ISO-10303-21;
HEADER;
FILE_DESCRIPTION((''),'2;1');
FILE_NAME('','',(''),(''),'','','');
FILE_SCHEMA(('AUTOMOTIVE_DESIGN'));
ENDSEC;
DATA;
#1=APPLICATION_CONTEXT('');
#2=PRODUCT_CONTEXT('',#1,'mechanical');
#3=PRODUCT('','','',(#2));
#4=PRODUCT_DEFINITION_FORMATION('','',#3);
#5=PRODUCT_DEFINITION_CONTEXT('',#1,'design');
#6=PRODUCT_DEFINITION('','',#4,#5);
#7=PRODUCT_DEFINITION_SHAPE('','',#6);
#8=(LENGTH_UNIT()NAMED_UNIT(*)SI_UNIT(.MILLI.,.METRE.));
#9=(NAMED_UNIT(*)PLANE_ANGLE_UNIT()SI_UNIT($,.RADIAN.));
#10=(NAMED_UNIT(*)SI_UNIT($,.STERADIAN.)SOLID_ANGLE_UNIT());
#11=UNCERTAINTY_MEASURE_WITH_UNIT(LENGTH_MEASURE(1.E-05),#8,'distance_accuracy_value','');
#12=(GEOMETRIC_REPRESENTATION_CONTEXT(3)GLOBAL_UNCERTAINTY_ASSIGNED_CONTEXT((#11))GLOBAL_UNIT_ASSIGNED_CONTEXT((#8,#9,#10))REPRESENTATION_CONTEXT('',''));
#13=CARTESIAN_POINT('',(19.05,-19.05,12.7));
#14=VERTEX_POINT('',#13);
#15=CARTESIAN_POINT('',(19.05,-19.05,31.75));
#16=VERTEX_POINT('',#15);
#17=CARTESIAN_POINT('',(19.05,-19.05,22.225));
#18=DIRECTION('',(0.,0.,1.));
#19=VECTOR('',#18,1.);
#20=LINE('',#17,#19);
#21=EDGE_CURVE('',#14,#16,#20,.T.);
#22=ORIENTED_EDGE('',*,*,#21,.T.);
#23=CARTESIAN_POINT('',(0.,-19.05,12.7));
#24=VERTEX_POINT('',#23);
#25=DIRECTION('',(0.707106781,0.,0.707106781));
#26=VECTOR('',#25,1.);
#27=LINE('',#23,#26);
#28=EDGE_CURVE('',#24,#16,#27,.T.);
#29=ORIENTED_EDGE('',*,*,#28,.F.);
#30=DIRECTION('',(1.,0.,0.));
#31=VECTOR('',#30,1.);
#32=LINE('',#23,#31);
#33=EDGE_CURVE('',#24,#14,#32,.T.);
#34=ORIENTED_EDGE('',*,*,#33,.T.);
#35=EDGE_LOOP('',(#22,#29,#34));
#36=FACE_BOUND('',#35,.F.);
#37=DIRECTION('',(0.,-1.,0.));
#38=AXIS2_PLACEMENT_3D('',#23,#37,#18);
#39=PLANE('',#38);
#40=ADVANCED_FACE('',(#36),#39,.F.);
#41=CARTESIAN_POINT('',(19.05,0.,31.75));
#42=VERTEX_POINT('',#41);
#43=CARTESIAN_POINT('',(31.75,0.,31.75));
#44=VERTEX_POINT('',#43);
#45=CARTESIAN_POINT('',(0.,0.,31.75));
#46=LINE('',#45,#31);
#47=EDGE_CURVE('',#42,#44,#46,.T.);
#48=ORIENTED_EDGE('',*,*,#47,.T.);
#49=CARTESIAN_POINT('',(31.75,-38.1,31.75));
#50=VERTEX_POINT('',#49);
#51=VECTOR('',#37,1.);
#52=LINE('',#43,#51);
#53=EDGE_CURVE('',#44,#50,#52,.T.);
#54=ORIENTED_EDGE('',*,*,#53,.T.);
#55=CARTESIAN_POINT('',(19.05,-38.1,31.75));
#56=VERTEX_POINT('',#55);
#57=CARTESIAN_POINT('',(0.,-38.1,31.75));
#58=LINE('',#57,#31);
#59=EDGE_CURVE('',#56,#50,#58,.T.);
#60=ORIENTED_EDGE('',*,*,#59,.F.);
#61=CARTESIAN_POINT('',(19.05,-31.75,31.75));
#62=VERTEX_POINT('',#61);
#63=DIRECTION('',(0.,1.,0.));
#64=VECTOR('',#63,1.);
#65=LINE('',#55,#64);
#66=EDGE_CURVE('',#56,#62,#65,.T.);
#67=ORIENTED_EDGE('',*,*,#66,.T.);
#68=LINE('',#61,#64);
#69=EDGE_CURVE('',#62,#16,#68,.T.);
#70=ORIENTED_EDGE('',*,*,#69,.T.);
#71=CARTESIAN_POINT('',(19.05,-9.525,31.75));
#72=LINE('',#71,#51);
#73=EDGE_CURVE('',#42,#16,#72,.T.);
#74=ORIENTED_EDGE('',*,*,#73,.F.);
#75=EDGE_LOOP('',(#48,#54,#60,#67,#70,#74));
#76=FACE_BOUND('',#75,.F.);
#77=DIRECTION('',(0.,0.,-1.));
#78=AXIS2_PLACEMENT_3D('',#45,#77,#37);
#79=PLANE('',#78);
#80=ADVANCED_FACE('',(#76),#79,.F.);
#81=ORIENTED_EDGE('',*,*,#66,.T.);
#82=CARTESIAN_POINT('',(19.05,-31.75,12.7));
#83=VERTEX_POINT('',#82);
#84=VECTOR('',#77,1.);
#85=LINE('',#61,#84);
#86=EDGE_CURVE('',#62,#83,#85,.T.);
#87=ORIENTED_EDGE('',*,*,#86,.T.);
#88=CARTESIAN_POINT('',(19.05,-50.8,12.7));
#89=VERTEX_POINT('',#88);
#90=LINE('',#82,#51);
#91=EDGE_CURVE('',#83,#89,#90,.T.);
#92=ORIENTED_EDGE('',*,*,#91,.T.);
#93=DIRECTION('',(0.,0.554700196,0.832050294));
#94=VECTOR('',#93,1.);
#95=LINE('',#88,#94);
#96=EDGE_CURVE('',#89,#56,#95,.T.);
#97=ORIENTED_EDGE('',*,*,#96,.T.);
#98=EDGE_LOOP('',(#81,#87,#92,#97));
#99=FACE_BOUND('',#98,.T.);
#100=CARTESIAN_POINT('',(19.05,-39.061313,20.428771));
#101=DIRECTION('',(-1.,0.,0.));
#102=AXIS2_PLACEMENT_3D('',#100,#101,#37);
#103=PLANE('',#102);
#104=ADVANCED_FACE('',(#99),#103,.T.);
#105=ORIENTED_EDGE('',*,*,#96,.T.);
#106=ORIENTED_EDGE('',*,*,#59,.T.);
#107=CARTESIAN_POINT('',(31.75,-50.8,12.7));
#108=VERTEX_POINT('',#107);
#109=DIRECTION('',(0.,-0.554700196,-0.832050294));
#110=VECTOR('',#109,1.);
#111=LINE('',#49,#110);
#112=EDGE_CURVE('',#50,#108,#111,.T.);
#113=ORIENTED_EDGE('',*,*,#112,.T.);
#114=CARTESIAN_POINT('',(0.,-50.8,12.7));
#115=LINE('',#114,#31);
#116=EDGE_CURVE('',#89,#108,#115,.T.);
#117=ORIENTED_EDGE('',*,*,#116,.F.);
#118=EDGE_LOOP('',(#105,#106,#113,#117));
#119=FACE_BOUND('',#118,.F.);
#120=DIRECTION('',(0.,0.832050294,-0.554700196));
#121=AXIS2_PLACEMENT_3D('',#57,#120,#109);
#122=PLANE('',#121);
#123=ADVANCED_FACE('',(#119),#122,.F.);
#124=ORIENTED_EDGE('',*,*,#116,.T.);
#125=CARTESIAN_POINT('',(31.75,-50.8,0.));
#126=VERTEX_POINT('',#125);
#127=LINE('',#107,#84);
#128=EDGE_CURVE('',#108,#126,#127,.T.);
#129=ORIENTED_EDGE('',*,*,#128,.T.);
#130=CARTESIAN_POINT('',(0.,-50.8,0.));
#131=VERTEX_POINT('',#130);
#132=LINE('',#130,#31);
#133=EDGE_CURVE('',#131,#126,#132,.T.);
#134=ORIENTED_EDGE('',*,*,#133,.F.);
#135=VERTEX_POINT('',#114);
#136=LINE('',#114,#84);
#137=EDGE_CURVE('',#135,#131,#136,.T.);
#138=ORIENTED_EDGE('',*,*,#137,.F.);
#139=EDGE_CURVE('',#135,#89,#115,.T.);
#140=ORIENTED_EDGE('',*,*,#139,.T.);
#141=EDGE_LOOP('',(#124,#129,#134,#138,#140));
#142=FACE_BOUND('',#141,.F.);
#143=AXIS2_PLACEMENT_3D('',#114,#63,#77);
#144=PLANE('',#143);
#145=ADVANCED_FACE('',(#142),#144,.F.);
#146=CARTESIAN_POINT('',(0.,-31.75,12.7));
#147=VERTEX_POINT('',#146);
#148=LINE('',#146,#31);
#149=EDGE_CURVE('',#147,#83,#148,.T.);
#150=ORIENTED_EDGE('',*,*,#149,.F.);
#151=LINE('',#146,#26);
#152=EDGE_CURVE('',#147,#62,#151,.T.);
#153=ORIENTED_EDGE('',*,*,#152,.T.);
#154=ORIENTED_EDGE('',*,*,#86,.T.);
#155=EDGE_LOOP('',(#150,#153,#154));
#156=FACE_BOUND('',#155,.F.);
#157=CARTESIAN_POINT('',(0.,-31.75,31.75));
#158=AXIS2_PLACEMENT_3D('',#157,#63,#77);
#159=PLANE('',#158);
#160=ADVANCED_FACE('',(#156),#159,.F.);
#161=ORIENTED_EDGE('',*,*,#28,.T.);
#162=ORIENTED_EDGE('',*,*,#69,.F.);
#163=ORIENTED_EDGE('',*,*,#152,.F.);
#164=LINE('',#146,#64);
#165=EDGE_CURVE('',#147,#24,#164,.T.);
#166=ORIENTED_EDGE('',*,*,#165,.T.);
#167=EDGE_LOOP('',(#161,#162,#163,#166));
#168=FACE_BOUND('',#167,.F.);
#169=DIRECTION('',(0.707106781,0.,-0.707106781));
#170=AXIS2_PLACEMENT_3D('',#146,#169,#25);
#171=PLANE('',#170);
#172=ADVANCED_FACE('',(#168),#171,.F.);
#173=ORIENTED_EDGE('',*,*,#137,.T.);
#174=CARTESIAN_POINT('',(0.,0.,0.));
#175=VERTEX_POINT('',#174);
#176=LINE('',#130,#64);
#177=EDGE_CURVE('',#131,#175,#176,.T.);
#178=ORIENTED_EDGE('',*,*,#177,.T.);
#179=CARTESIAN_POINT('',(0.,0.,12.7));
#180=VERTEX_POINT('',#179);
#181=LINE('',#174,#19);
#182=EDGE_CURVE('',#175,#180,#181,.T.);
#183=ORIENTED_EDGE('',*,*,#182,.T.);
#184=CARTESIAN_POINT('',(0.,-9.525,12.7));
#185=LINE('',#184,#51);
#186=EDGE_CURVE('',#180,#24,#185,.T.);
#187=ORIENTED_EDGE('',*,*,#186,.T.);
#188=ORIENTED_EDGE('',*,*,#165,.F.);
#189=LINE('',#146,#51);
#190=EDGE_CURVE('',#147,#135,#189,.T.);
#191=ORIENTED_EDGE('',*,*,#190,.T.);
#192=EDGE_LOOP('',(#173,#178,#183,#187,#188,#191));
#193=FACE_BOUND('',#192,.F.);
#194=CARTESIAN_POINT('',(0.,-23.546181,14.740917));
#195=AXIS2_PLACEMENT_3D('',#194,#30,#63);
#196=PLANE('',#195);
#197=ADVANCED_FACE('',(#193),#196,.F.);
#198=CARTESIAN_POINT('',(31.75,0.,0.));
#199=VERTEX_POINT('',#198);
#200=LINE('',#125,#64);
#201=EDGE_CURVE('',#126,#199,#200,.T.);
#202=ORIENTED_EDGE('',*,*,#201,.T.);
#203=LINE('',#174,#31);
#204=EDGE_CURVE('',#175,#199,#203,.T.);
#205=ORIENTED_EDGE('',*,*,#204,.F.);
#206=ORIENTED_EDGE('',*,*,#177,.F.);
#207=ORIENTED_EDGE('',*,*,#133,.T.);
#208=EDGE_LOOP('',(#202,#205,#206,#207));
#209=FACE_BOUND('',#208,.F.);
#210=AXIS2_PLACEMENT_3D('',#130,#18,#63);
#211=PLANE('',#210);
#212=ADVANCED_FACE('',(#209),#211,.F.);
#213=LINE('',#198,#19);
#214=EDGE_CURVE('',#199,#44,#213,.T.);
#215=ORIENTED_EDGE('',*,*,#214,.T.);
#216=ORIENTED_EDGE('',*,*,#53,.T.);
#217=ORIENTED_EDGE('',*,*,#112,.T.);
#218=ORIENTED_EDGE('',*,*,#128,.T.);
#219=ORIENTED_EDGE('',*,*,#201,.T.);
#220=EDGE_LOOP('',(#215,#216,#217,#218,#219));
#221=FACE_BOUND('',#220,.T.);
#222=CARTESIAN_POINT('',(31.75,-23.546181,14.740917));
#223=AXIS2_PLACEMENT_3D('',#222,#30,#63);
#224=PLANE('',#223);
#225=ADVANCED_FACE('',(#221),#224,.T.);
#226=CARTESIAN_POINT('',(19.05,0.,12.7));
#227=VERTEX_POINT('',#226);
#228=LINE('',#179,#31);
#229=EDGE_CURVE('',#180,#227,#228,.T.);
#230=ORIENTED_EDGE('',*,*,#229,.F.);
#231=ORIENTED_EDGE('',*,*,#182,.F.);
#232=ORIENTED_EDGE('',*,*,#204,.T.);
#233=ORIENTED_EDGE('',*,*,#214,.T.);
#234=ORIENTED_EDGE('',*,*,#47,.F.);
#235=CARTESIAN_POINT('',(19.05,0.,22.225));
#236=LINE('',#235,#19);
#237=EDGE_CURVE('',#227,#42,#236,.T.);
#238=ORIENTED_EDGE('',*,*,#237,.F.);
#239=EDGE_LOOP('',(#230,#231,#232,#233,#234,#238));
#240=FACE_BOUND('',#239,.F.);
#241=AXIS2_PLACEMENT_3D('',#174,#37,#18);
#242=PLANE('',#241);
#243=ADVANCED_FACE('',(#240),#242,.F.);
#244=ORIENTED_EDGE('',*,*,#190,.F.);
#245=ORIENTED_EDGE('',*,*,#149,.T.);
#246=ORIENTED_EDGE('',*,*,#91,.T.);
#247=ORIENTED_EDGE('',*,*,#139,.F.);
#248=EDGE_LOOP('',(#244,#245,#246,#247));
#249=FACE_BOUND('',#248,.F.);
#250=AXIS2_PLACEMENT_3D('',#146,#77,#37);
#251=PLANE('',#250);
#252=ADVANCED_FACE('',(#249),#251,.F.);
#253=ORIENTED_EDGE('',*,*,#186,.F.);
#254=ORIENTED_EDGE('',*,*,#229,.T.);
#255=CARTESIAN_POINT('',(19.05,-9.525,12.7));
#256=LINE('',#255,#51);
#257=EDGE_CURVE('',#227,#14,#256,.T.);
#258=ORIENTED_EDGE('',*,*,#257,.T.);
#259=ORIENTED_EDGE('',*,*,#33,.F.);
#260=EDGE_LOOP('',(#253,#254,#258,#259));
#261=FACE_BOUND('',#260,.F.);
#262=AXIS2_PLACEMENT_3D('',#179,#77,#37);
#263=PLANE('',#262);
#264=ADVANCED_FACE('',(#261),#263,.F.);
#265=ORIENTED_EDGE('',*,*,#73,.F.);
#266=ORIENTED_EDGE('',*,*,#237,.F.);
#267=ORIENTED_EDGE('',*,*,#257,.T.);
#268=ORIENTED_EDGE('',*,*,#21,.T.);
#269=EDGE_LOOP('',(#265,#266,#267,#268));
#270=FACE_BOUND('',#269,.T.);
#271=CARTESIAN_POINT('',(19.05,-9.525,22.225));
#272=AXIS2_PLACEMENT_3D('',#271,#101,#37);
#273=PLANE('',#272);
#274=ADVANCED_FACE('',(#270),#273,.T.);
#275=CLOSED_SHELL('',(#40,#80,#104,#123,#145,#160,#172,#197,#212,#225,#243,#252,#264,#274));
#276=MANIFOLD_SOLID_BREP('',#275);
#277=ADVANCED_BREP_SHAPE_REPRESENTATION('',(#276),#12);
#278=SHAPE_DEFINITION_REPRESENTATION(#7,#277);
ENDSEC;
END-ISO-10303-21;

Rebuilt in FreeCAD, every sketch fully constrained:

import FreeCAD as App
import Part
import Sketcher

V = App.Vector
Q = App.Units.Quantity

doc = App.newDocument("Part")
params = doc.addObject("Spreadsheet::Sheet", "Params")
for row, (alias, value) in enumerate([
    ("sketch1_width", "2 in"),
    ("sketch1_width2", "1.5 in"),
    ("sketch1_height", "0.5 in"),
    ("sketch1_height2", "1.25 in"),
    ("pad1_length", "1.25 in"),
    ("sketch2_width", "0.75 in"),
    ("sketch2_width2", "0.25 in"),
    ("pocket1_length", "0.75 in"),
    ("sketch3_width", "0.75 in"),
    ("pocket2_length", "0.5 in"),
    ("sketch4_width", "0.75 in"),
    ("pocket3_length", "0.75 in"),
], start=1):
    params.set(f"A{row}", alias)
    params.set(f"B{row}", "=" + value)
    params.setAlias(f"B{row}", alias)

body = doc.addObject("PartDesign::Body", "Body")

# Sketch on YZ plane
sketch1 = doc.addObject("Sketcher::SketchObject", "Sketch")
body.addObject(sketch1)
sketch1.AttachmentSupport = (doc.YZ_Plane, [""])
sketch1.MapMode = "FlatFace"
sketch1.addGeometry([
    Part.LineSegment(V(-51, 0, 0), V(0, 0, 0)),  # 0
    Part.LineSegment(V(0, 0, 0), V(0, 32, 0)),  # 1
    Part.LineSegment(V(0, 32, 0), V(-38, 32, 0)),  # 2
    Part.LineSegment(V(-38, 32, 0), V(-51, 13, 0)),  # 3
    Part.LineSegment(V(-51, 13, 0), V(-51, 0, 0)),  # 4
], False)
sketch1.addConstraint([
    Sketcher.Constraint("Coincident", 0, 2, 1, 1),
    Sketcher.Constraint("Coincident", 1, 2, 2, 1),
    Sketcher.Constraint("Coincident", 2, 2, 3, 1),
    Sketcher.Constraint("Coincident", 3, 2, 4, 1),
    Sketcher.Constraint("Coincident", 4, 2, 0, 1),
    Sketcher.Constraint("Horizontal", 0),
    Sketcher.Constraint("Vertical", 1),
    Sketcher.Constraint("Horizontal", 2),
    Sketcher.Constraint("Vertical", 4),
    Sketcher.Constraint("Coincident", 0, 2, -1, 1),
    Sketcher.Constraint("DistanceX", 0, 1, 0, 2, Q("2 in")),
    Sketcher.Constraint("DistanceX", 2, 2, 2, 1, Q("1.5 in")),
    Sketcher.Constraint("DistanceY", 4, 2, 4, 1, Q("0.5 in")),
    Sketcher.Constraint("DistanceY", 1, 1, 1, 2, Q("1.25 in")),
])
sketch1.setExpression("Constraints[10]", "Params.sketch1_width")
sketch1.setExpression("Constraints[11]", "Params.sketch1_width2")
sketch1.setExpression("Constraints[12]", "Params.sketch1_height")
sketch1.setExpression("Constraints[13]", "Params.sketch1_height2")
pad1 = doc.addObject("PartDesign::Pad", "Pad")
body.addObject(pad1)
pad1.Profile = sketch1
pad1.setExpression("Length", "Params.pad1_length")

# Sketch on YZ plane
sketch2 = doc.addObject("Sketcher::SketchObject", "Sketch001")
body.addObject(sketch2)
sketch2.AttachmentSupport = (doc.YZ_Plane, [""])
sketch2.MapMode = "FlatFace"
sketch2.addGeometry([
    Part.LineSegment(V(-32, 13, 0), V(-51, 13, 0)),
    Part.LineSegment(V(-51, 13, 0), V(-38, 32, 0)),
    Part.LineSegment(V(-38, 32, 0), V(-32, 32, 0)),
    Part.LineSegment(V(-32, 32, 0), V(-32, 13, 0)),
], False)
sketch2.addConstraint([
    Sketcher.Constraint("Coincident", 0, 2, 1, 1),
    Sketcher.Constraint("Coincident", 1, 2, 2, 1),
    Sketcher.Constraint("Coincident", 2, 2, 3, 1),
    Sketcher.Constraint("Coincident", 3, 2, 0, 1),
    Sketcher.Constraint("Horizontal", 0),
    Sketcher.Constraint("Horizontal", 2),
    Sketcher.Constraint("Vertical", 3),
    Sketcher.Constraint("Equal", 0, 3),
    Sketcher.Constraint("DistanceX", 0, 2, -1, 1, Q("2 in")),
    Sketcher.Constraint("DistanceX", 0, 2, 0, 1, Q("0.75 in")),
    Sketcher.Constraint("DistanceX", 2, 1, 2, 2, Q("0.25 in")),
    Sketcher.Constraint("DistanceY", -1, 1, 0, 2, Q("0.5 in")),
])
sketch2.setExpression("Constraints[9]", "Params.sketch2_width")
sketch2.setExpression("Constraints[10]", "Params.sketch2_width2")
pocket1 = doc.addObject("PartDesign::Pocket", "Pocket")
body.addObject(pocket1)
pocket1.Profile = sketch2
pocket1.setExpression("Length", "Params.pocket1_length")
pocket1.Reversed = True

# Sketch on XZ plane
sketch3 = doc.addObject("Sketcher::SketchObject", "Sketch002")
body.addObject(sketch3)
sketch3.AttachmentSupport = (doc.XZ_Plane, [""])
sketch3.MapMode = "FlatFace"
sketch3.AttachmentOffset = App.Placement(V(0, 0, 1.25 * 25.4), App.Rotation())
sketch3.addGeometry([
    Part.LineSegment(V(0, 13, 0), V(19, 32, 0)),
    Part.LineSegment(V(19, 32, 0), V(0, 32, 0)),
    Part.LineSegment(V(0, 32, 0), V(0, 13, 0)),
], False)
sketch3.addConstraint([
    Sketcher.Constraint("Coincident", 0, 2, 1, 1),
    Sketcher.Constraint("Coincident", 1, 2, 2, 1),
    Sketcher.Constraint("Coincident", 2, 2, 0, 1),
    Sketcher.Constraint("Horizontal", 1),
    Sketcher.Constraint("Vertical", 2),
    Sketcher.Constraint("PointOnObject", 1, 2, -2),
    Sketcher.Constraint("Equal", 1, 2),
    Sketcher.Constraint("DistanceX", 1, 2, 1, 1, Q("0.75 in")),
    Sketcher.Constraint("DistanceY", -1, 1, 2, 2, Q("0.5 in")),
])
sketch3.setExpression("Constraints[7]", "Params.sketch3_width")
pocket2 = doc.addObject("PartDesign::Pocket", "Pocket001")
body.addObject(pocket2)
pocket2.Profile = sketch3
pocket2.setExpression("Length", "Params.pocket2_length")

# Sketch on YZ plane
sketch4 = doc.addObject("Sketcher::SketchObject", "Sketch003")
body.addObject(sketch4)
sketch4.AttachmentSupport = (doc.YZ_Plane, [""])
sketch4.MapMode = "FlatFace"
sketch4.addGeometry([
    Part.LineSegment(V(0, 32, 0), V(0, 13, 0)),
    Part.LineSegment(V(0, 13, 0), V(-19, 13, 0)),
    Part.LineSegment(V(-19, 13, 0), V(-19, 32, 0)),
    Part.LineSegment(V(-19, 32, 0), V(0, 32, 0)),
], False)
sketch4.addConstraint([
    Sketcher.Constraint("Coincident", 0, 2, 1, 1),
    Sketcher.Constraint("Coincident", 1, 2, 2, 1),
    Sketcher.Constraint("Coincident", 2, 2, 3, 1),
    Sketcher.Constraint("Coincident", 3, 2, 0, 1),
    Sketcher.Constraint("Vertical", 0),
    Sketcher.Constraint("Horizontal", 1),
    Sketcher.Constraint("Vertical", 2),
    Sketcher.Constraint("Horizontal", 3),
    Sketcher.Constraint("PointOnObject", 0, 2, -2),
    Sketcher.Constraint("Equal", 3, 0),
    Sketcher.Constraint("DistanceX", 1, 2, 1, 1, Q("0.75 in")),
    Sketcher.Constraint("DistanceY", -1, 1, 0, 2, Q("0.5 in")),
])
sketch4.setExpression("Constraints[10]", "Params.sketch4_width")
pocket3 = doc.addObject("PartDesign::Pocket", "Pocket002")
body.addObject(pocket3)
pocket3.Profile = sketch4
pocket3.setExpression("Length", "Params.pocket3_length")
pocket3.Reversed = True

doc.recompute()
